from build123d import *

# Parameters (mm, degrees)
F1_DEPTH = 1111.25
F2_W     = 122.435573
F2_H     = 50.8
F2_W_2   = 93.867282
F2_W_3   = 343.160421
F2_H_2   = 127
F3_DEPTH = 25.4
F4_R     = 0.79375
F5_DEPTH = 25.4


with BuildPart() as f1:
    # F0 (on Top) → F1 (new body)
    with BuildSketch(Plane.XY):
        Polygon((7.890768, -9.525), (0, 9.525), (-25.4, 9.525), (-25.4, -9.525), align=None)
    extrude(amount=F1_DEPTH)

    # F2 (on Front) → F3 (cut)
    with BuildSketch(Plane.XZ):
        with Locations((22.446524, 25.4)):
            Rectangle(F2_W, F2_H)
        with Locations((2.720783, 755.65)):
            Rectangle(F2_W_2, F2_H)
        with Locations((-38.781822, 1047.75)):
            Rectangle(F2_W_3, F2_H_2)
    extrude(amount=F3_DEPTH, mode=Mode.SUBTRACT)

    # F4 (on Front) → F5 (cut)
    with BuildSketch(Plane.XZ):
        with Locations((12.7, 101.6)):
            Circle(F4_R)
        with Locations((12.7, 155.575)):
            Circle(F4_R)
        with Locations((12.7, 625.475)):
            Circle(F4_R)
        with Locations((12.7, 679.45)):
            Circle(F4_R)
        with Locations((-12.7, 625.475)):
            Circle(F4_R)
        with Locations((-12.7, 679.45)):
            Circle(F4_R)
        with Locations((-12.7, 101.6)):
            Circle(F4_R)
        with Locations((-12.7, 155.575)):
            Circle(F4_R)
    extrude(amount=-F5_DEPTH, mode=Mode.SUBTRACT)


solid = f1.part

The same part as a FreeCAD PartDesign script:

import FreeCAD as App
import Part
import Sketcher

V = App.Vector
Q = App.Units.Quantity

doc = App.newDocument("Part")
body = doc.addObject("PartDesign::Body", "Body")

# Sketch on XY plane
sketch1 = body.newObject("Sketcher::SketchObject", "Sketch")
sketch1.AttachmentSupport = (doc.getObject("XY_Plane"), [""])
sketch1.MapMode = "FlatFace"
sketch1.addGeometry(Part.LineSegment(V(8, -10, 0), V(0, 10, 0)), False)
sketch1.addGeometry(Part.LineSegment(V(0, 10, 0), V(-25, 10, 0)), False)
sketch1.addGeometry(Part.LineSegment(V(-25, 10, 0), V(-25, -10, 0)), False)
sketch1.addGeometry(Part.LineSegment(V(-25, -10, 0), V(8, -10, 0)), False)
sketch1.addConstraint(Sketcher.Constraint("Coincident", 0, 2, 1, 1))
sketch1.addConstraint(Sketcher.Constraint("Coincident", 1, 2, 2, 1))
sketch1.addConstraint(Sketcher.Constraint("Coincident", 2, 2, 3, 1))
sketch1.addConstraint(Sketcher.Constraint("Coincident", 3, 2, 0, 1))
sketch1.addConstraint(Sketcher.Constraint("Horizontal", 1))
sketch1.addConstraint(Sketcher.Constraint("Vertical", 2))
sketch1.addConstraint(Sketcher.Constraint("Horizontal", 3))
sketch1.addConstraint(Sketcher.Constraint("PointOnObject", 0, 2, -2))
sketch1.addConstraint(Sketcher.Constraint("DistanceX", 1, 2, 1, 1, Q("1 in")))
sketch1.addConstraint(Sketcher.Constraint("DistanceY", 2, 2, 2, 1, Q("0.75 in")))
sketch1.addConstraint(Sketcher.Constraint("Angle", 0, Q("112.499999 deg")))
sketch1.addConstraint(Sketcher.Constraint("DistanceY", -1, 1, 0, 2, Q("0.375 in")))
pad1 = body.newObject("PartDesign::Pad", "Pad")
pad1.Profile = sketch1
pad1.Length = Q("43.75 in")

# Sketch on XZ plane
sketch2 = body.newObject("Sketcher::SketchObject", "Sketch001")
sketch2.AttachmentSupport = (doc.getObject("XZ_Plane"), [""])
sketch2.MapMode = "FlatFace"
sketch2.addGeometry(Part.LineSegment(V(-39, 51, 0), V(-39, 0, 0)), False)
sketch2.addGeometry(Part.LineSegment(V(-39, 0, 0), V(84, 0, 0)), False)
sketch2.addGeometry(Part.LineSegment(V(84, 0, 0), V(84, 51, 0)), False)
sketch2.addGeometry(Part.LineSegment(V(84, 51, 0), V(-39, 51, 0)), False)
sketch2.addGeometry(Part.LineSegment(V(-44, 781, 0), V(-44, 730, 0)), False)
sketch2.addGeometry(Part.LineSegment(V(-44, 730, 0), V(50, 730, 0)), False)
sketch2.addGeometry(Part.LineSegment(V(50, 730, 0), V(50, 781, 0)), False)
sketch2.addGeometry(Part.LineSegment(V(50, 781, 0), V(-44, 781, 0)), False)
sketch2.addGeometry(Part.LineSegment(V(-210, 1111, 0), V(-210, 984, 0)), False)
sketch2.addGeometry(Part.LineSegment(V(-210, 984, 0), V(133, 984, 0)), False)
sketch2.addGeometry(Part.LineSegment(V(133, 984, 0), V(133, 1111, 0)), False)
sketch2.addGeometry(Part.LineSegment(V(133, 1111, 0), V(-210, 1111, 0)), False)
sketch2.addConstraint(Sketcher.Constraint("Coincident", 0, 2, 1, 1))
sketch2.addConstraint(Sketcher.Constraint("Coincident", 1, 2, 2, 1))
sketch2.addConstraint(Sketcher.Constraint("Coincident", 2, 2, 3, 1))
sketch2.addConstraint(Sketcher.Constraint("Coincident", 3, 2, 0, 1))
sketch2.addConstraint(Sketcher.Constraint("Coincident", 4, 2, 5, 1))
sketch2.addConstraint(Sketcher.Constraint("Coincident", 5, 2, 6, 1))
sketch2.addConstraint(Sketcher.Constraint("Coincident", 6, 2, 7, 1))
sketch2.addConstraint(Sketcher.Constraint("Coincident", 7, 2, 4, 1))
sketch2.addConstraint(Sketcher.Constraint("Coincident", 8, 2, 9, 1))
sketch2.addConstraint(Sketcher.Constraint("Coincident", 9, 2, 10, 1))
sketch2.addConstraint(Sketcher.Constraint("Coincident", 10, 2, 11, 1))
sketch2.addConstraint(Sketcher.Constraint("Coincident", 11, 2, 8, 1))
sketch2.addConstraint(Sketcher.Constraint("Vertical", 0))
sketch2.addConstraint(Sketcher.Constraint("Horizontal", 1))
sketch2.addConstraint(Sketcher.Constraint("Vertical", 2))
sketch2.addConstraint(Sketcher.Constraint("Horizontal", 3))
sketch2.addConstraint(Sketcher.Constraint("Vertical", 4))
sketch2.addConstraint(Sketcher.Constraint("Horizontal", 5))
sketch2.addConstraint(Sketcher.Constraint("Vertical", 6))
sketch2.addConstraint(Sketcher.Constraint("Horizontal", 7))
sketch2.addConstraint(Sketcher.Constraint("Vertical", 8))
sketch2.addConstraint(Sketcher.Constraint("Horizontal", 9))
sketch2.addConstraint(Sketcher.Constraint("Vertical", 10))
sketch2.addConstraint(Sketcher.Constraint("Horizontal", 11))
sketch2.addConstraint(Sketcher.Constraint("PointOnObject", 0, 2, -1))
sketch2.addConstraint(Sketcher.Constraint("Equal", 2, 4))
sketch2.addConstraint(Sketcher.Constraint("DistanceY", 0, 2, 0, 1, Q("2 in")))
sketch2.addConstraint(Sketcher.Constraint("DistanceY", 8, 2, 8, 1, Q("5 in")))
sketch2.addConstraint(Sketcher.Constraint("DistanceY", 7, 2, 8, 2, Q("8 in")))
sketch2.addConstraint(Sketcher.Constraint("DistanceY", -1, 1, 4, 2, Q("28.75 in")))
sketch2.addConstraint(Sketcher.Constraint("DistanceX", 5, 1, 5, 2, Q("93.867282 mm")))
sketch2.addConstraint(Sketcher.Constraint("DistanceX", 9, 1, 9, 2, Q("343.160421 mm")))
sketch2.addConstraint(Sketcher.Constraint("DistanceX", 1, 1, 1, 2, Q("122.435573 mm")))
sketch2.addConstraint(Sketcher.Constraint("DistanceX", -1, 1, 1, 2, Q("83.66431 mm")))
sketch2.addConstraint(Sketcher.Constraint("DistanceX", -1, 1, 9, 2, Q("132.798388 mm")))
sketch2.addConstraint(Sketcher.Constraint("DistanceX", 4, 2, 2, 2, Q("127.877168 mm")))
pocket1 = body.newObject("PartDesign::Pocket", "Pocket")
pocket1.Profile = sketch2
pocket1.Length = Q("1 in")
pocket1.Reversed = True

# Sketch on XZ plane
sketch3 = body.newObject("Sketcher::SketchObject", "Sketch002")
sketch3.AttachmentSupport = (doc.getObject("XZ_Plane"), [""])
sketch3.MapMode = "FlatFace"
sketch3.addGeometry(Part.Circle(V(12.7, 101.6, 0), V(0, 0, 1), 0.8), False)
sketch3.addGeometry(Part.Circle(V(12.7, 155.6, 0), V(0, 0, 1), 0.8), False)
sketch3.addGeometry(Part.Circle(V(12.7, 625.5, 0), V(0, 0, 1), 0.8), False)
sketch3.addGeometry(Part.Circle(V(12.7, 679.5, 0), V(0, 0, 1), 0.8), False)
sketch3.addGeometry(Part.Circle(V(-12.7, 625.5, 0), V(0, 0, 1), 0.8), False)
sketch3.addGeometry(Part.Circle(V(-12.7, 679.5, 0), V(0, 0, 1), 0.8), False)
sketch3.addGeometry(Part.Circle(V(-12.7, 101.6, 0), V(0, 0, 1), 0.8), False)
sketch3.addGeometry(Part.Circle(V(-12.7, 155.6, 0), V(0, 0, 1), 0.8), False)
sketch3.addConstraint(Sketcher.Constraint("Equal", 0, 1))
sketch3.addConstraint(Sketcher.Constraint("Equal", 1, 2))
sketch3.addConstraint(Sketcher.Constraint("Equal", 2, 3))
sketch3.addConstraint(Sketcher.Constraint("Equal", 3, 4))
sketch3.addConstraint(Sketcher.Constraint("Equal", 4, 5))
sketch3.addConstraint(Sketcher.Constraint("Equal", 5, 6))
sketch3.addConstraint(Sketcher.Constraint("Equal", 6, 7))
sketch3.addConstraint(Sketcher.Constraint("Symmetric", 2, 3, 4, 3, -2))
sketch3.addConstraint(Sketcher.Constraint("Symmetric", 3, 3, 5, 3, -2))
sketch3.addConstraint(Sketcher.Constraint("Symmetric", 0, 3, 6, 3, -2))
sketch3.addConstraint(Sketcher.Constraint("Symmetric", 1, 3, 7, 3, -2))
sketch3.addConstraint(Sketcher.Constraint("Vertical", 0, 3, 1, 3))
sketch3.addConstraint(Sketcher.Constraint("Vertical", 1, 3, 2, 3))
sketch3.addConstraint(Sketcher.Constraint("Vertical", 2, 3, 3, 3))
sketch3.addConstraint(Sketcher.Constraint("Diameter", 0, Q("0.0625 in")))
sketch3.addConstraint(Sketcher.Constraint("DistanceY", -1, 1, 0, 3, Q("4 in")))
sketch3.addConstraint(Sketcher.Constraint("DistanceX", 4, 3, 2, 3, Q("1 in")))
sketch3.addConstraint(Sketcher.Constraint("DistanceY", 1, 3, 2, 3, Q("18.5 in")))
sketch3.addConstraint(Sketcher.Constraint("DistanceY", -1, 1, 3, 3, Q("26.75 in")))
sketch3.addConstraint(Sketcher.Constraint("DistanceY", -1, 1, 1, 3, Q("6.125 in")))
pocket2 = body.newObject("PartDesign::Pocket", "Pocket001")
pocket2.Profile = sketch3
pocket2.Length = Q("1 in")

doc.recompute()
